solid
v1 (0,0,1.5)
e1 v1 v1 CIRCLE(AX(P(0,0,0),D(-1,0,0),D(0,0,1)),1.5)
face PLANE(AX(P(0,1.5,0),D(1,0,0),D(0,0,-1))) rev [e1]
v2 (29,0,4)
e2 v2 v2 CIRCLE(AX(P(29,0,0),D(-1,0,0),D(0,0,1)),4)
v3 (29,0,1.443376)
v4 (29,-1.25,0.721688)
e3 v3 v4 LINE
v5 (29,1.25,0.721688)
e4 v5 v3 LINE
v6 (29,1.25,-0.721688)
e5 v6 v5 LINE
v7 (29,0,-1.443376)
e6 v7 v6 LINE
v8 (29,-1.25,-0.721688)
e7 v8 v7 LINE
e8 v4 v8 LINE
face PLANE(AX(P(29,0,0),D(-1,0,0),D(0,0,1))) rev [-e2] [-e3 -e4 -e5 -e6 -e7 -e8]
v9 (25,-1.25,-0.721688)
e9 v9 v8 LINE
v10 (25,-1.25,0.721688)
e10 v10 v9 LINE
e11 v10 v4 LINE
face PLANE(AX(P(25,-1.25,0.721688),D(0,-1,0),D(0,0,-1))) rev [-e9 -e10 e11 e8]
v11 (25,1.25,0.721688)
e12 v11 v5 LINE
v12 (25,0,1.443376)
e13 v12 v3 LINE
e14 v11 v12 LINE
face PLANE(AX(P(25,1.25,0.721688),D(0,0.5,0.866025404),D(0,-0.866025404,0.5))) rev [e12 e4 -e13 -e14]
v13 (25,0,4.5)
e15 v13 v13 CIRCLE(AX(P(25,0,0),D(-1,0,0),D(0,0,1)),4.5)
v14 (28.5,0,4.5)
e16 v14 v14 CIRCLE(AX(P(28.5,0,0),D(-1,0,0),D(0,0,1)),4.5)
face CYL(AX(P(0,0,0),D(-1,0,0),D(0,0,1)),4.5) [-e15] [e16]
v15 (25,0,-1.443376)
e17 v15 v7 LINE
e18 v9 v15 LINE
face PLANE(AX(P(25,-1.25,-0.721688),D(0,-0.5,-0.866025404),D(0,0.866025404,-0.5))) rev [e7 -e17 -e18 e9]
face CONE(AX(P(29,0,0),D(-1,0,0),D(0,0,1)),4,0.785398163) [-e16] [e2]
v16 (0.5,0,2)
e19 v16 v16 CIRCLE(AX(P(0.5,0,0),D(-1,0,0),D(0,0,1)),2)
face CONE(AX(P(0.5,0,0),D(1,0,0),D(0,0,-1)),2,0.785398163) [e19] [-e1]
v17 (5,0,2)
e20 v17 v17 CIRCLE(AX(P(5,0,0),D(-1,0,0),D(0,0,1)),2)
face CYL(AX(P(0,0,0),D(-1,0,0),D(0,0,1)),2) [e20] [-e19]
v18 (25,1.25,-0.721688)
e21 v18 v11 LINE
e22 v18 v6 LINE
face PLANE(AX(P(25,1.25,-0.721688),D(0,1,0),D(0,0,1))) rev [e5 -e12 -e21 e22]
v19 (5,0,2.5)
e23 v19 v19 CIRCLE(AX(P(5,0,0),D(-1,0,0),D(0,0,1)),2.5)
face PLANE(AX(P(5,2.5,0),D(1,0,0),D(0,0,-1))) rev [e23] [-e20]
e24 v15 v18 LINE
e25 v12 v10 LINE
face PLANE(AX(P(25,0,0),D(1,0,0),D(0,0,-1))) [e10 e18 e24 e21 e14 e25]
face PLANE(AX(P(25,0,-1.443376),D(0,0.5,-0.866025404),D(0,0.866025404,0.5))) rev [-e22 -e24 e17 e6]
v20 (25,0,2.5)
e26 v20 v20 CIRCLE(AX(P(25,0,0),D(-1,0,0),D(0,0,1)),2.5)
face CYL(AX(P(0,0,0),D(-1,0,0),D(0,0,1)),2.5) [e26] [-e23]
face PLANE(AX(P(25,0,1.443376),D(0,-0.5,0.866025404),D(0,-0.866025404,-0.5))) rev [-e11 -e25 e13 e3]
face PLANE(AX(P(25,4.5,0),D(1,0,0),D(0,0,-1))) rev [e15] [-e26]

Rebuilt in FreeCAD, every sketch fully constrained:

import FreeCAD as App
import Part
import Sketcher
Q = App.Units.Quantity

doc = App.newDocument("Part")
body = doc.addObject("PartDesign::Body", "Body")

# Sketch on XY plane
sketch1 = body.newObject("Sketcher::SketchObject", "Sketch")
sketch1.AttachmentSupport = (doc.getObject("XY_Plane"), [""])
sketch1.MapMode = "FlatFace"
sketch1.addGeometry(Part.LineSegment(App.Vector(0, 0, 0), App.Vector(29, 0, 0)), False)
sketch1.addGeometry(Part.LineSegment(App.Vector(29, 0, 0), App.Vector(29, 4, 0)), False)
sketch1.addGeometry(Part.LineSegment(App.Vector(29, 4, 0), App.Vector(28.5, 4.5, 0)), False)
sketch1.addGeometry(Part.LineSegment(App.Vector(28.5, 4.5, 0), App.Vector(25, 4.5, 0)), False)
sketch1.addGeometry(Part.LineSegment(App.Vector(25, 4.5, 0), App.Vector(25, 2.5, 0)), False)
sketch1.addGeometry(Part.LineSegment(App.Vector(25, 2.5, 0), App.Vector(5, 2.5, 0)), False)
sketch1.addGeometry(Part.LineSegment(App.Vector(5, 2.5, 0), App.Vector(5, 2, 0)), False)
sketch1.addGeometry(Part.LineSegment(App.Vector(5, 2, 0), App.Vector(0.5, 2, 0)), False)
sketch1.addGeometry(Part.LineSegment(App.Vector(0.5, 2, 0), App.Vector(0, 1.5, 0)), False)
sketch1.addGeometry(Part.LineSegment(App.Vector(0, 1.5, 0), App.Vector(0, 0, 0)), False)
sketch1.addConstraint(Sketcher.Constraint("Coincident", 0, 2, 1, 1))
sketch1.addConstraint(Sketcher.Constraint("Coincident", 1, 2, 2, 1))
sketch1.addConstraint(Sketcher.Constraint("Coincident", 2, 2, 3, 1))
sketch1.addConstraint(Sketcher.Constraint("Coincident", 3, 2, 4, 1))
sketch1.addConstraint(Sketcher.Constraint("Coincident", 4, 2, 5, 1))
sketch1.addConstraint(Sketcher.Constraint("Coincident", 5, 2, 6, 1))
sketch1.addConstraint(Sketcher.Constraint("Coincident", 6, 2, 7, 1))
sketch1.addConstraint(Sketcher.Constraint("Coincident", 7, 2, 8, 1))
sketch1.addConstraint(Sketcher.Constraint("Coincident", 8, 2, 9, 1))
sketch1.addConstraint(Sketcher.Constraint("Coincident", 9, 2, 0, 1))
sketch1.addConstraint(Sketcher.Constraint("Horizontal", 0))
sketch1.addConstraint(Sketcher.Constraint("Vertical", 1))
sketch1.addConstraint(Sketcher.Constraint("Horizontal", 3))
sketch1.addConstraint(Sketcher.Constraint("Vertical", 4))
sketch1.addConstraint(Sketcher.Constraint("Horizontal", 5))
sketch1.addConstraint(Sketcher.Constraint("Vertical", 6))
sketch1.addConstraint(Sketcher.Constraint("Horizontal", 7))
sketch1.addConstraint(Sketcher.Constraint("Vertical", 9))
sketch1.addConstraint(Sketcher.Constraint("Coincident", 9, 2, -1, 1))
sketch1.addConstraint(Sketcher.Constraint("Perpendicular", 2, 8))
sketch1.addConstraint(Sketcher.Constraint("Equal", 2, 8))
sketch1.addConstraint(Sketcher.Constraint("DistanceX", 0, 1, 0, 2, Q("29 mm")))
sketch1.addConstraint(Sketcher.Constraint("DistanceX", 5, 2, 5, 1, Q("20 mm")))
sketch1.addConstraint(Sketcher.Constraint("DistanceY", 1, 1, 1, 2, Q("4 mm")))
sketch1.addConstraint(Sketcher.Constraint("DistanceY", 4, 2, 4, 1, Q("2 mm")))
sketch1.addConstraint(Sketcher.Constraint("Angle", 2, Q("135 deg")))
sketch1.addConstraint(Sketcher.Constraint("DistanceX", 3, 2, 3, 1, Q("3.5 mm")))
sketch1.addConstraint(Sketcher.Constraint("DistanceX", 7, 2, 7, 1, Q("4.5 mm")))
sketch1.addConstraint(Sketcher.Constraint("DistanceY", 6, 2, 6, 1, Q("0.5 mm")))
revolution = body.newObject("PartDesign::Revolution", "Revolution")
revolution.Profile = sketch1
revolution.ReferenceAxis = (sketch1, ["H_Axis"])
revolution.Angle = 360

# Sketch on YZ plane
sketch2 = body.newObject("Sketcher::SketchObject", "Sketch001")
sketch2.AttachmentSupport = (doc.getObject("YZ_Plane"), [""])
sketch2.MapMode = "FlatFace"
sketch2.AttachmentOffset = App.Placement(App.Vector(0, 0, 29), App.Rotation())
sketch2.addGeometry(Part.LineSegment(App.Vector(0, -1.4, 0), App.Vector(1.2, -0.7, 0)), False)
sketch2.addGeometry(Part.LineSegment(App.Vector(1.2, -0.7, 0), App.Vector(1.2, 0.7, 0)), False)
sketch2.addGeometry(Part.LineSegment(App.Vector(1.2, 0.7, 0), App.Vector(0, 1.4, 0)), False)
sketch2.addGeometry(Part.LineSegment(App.Vector(0, 1.4, 0), App.Vector(-1.2, 0.7, 0)), False)
sketch2.addGeometry(Part.LineSegment(App.Vector(-1.2, 0.7, 0), App.Vector(-1.2, -0.7, 0)), False)
sketch2.addGeometry(Part.LineSegment(App.Vector(-1.2, -0.7, 0), App.Vector(0, -1.4, 0)), False)
sketch2.addConstraint(Sketcher.Constraint("Coincident", 0, 2, 1, 1))
sketch2.addConstraint(Sketcher.Constraint("Coincident", 1, 2, 2, 1))
sketch2.addConstraint(Sketcher.Constraint("Coincident", 2, 2, 3, 1))
sketch2.addConstraint(Sketcher.Constraint("Coincident", 3, 2, 4, 1))
sketch2.addConstraint(Sketcher.Constraint("Coincident", 4, 2, 5, 1))
sketch2.addConstraint(Sketcher.Constraint("Coincident", 5, 2, 0, 1))
sketch2.addConstraint(Sketcher.Constraint("Vertical", 1))
sketch2.addConstraint(Sketcher.Constraint("Vertical", 4))
sketch2.addConstraint(Sketcher.Constraint("Symmetric", 0, 2, 3, 2, -1, 1))
sketch2.addConstraint(Sketcher.Constraint("Symmetric", 2, 2, 5, 2, -1, 1))
sketch2.addConstraint(Sketcher.Constraint("PointOnObject", 2, 2, -2))
sketch2.addConstraint(Sketcher.Constraint("Parallel", 2, 5))
sketch2.addConstraint(Sketcher.Constraint("Horizontal", 1, 2, 3, 2))
sketch2.addConstraint(Sketcher.Constraint("Angle", 0, Q("30 deg")))
sketch2.addConstraint(Sketcher.Constraint("DistanceX", 3, 2, 1, 2, Q("2.5 mm")))
sketch2.addConstraint(Sketcher.Constraint("DistanceY", 1, 1, 1, 2, Q("1.443376 mm")))
pocket1 = body.newObject("PartDesign::Pocket", "Pocket")
pocket1.Profile = sketch2
pocket1.Length = 4

doc.recompute()
